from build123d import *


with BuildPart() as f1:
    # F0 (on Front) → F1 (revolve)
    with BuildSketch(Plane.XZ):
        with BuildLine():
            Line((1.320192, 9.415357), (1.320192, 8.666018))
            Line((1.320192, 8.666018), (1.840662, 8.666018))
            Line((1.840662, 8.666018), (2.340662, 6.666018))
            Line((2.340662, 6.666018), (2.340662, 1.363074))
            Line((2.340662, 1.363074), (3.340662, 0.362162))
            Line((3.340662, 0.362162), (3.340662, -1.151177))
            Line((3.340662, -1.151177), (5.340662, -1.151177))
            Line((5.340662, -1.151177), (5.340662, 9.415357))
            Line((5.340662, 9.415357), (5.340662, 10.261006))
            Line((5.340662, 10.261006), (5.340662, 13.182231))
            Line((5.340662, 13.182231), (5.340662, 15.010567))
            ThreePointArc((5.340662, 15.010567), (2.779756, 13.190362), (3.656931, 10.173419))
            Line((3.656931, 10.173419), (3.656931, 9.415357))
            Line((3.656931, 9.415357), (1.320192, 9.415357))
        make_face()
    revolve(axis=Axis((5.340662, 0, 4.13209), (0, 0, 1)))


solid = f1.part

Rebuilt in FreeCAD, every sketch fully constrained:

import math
import FreeCAD as App
import Part
import Sketcher

V = App.Vector

doc = App.newDocument("Part")
params = doc.addObject("Spreadsheet::Sheet", "Params")
for row, (alias, value) in enumerate([
    ("sketch1_width", "2 mm"),
    ("revolution_angle", "360 deg"),
], start=1):
    params.set(f"A{row}", alias)
    params.set(f"B{row}", "=" + value)
    params.setAlias(f"B{row}", alias)

body = doc.addObject("PartDesign::Body", "Body")

sketch1 = body.newObject("Sketcher::SketchObject", "Sketch")
sketch1.AttachmentSupport = (doc.getObject("XZ_Plane"), [""])
sketch1.MapMode = "FlatFace"
sketch1.addGeometry([
    Part.LineSegment(V(1.3, 9.4, 0), V(1.3, 8.7, 0)),
    Part.LineSegment(V(1.3, 8.7, 0), V(1.8, 8.7, 0)),
    Part.LineSegment(V(1.8, 8.7, 0), V(2.3, 6.7, 0)),
    Part.LineSegment(V(2.3, 6.7, 0), V(2.3, 1.4, 0)),
    Part.LineSegment(V(2.3, 1.4, 0), V(3.3, 0.4, 0)),
    Part.LineSegment(V(3.3, 0.4, 0), V(3.3, -1.2, 0)),
    Part.LineSegment(V(3.3, -1.2, 0), V(5.3, -1.2, 0)),
    Part.LineSegment(V(5.3, -1.2, 0), V(5.3, 15, 0)),
    Part.ArcOfCircle(Part.Circle(V(5.3, 12.3, 0), V(0, 0, 1), 2.7), math.radians(90), math.radians(232)),
    Part.LineSegment(V(3.7, 10.2, 0), V(3.7, 9.4, 0)),
    Part.LineSegment(V(3.7, 9.4, 0), V(1.3, 9.4, 0)),
], False)
sketch1.addGeometry(Part.LineSegment(V(5.3, -1.2, 0), V(5.3, 15, 0)), True)
sketch1.addConstraint([
    Sketcher.Constraint("Coincident", 0, 2, 1, 1),
    Sketcher.Constraint("Coincident", 1, 2, 2, 1),
    Sketcher.Constraint("Coincident", 2, 2, 3, 1),
    Sketcher.Constraint("Coincident", 3, 2, 4, 1),
    Sketcher.Constraint("Coincident", 4, 2, 5, 1),
    Sketcher.Constraint("Coincident", 5, 2, 6, 1),
    Sketcher.Constraint("Coincident", 6, 2, 7, 1),
    Sketcher.Constraint("Coincident", 7, 2, 8, 1),
    Sketcher.Constraint("Coincident", 8, 2, 9, 1),
    Sketcher.Constraint("Coincident", 9, 2, 10, 1),
    Sketcher.Constraint("Coincident", 10, 2, 0, 1),
    Sketcher.Constraint("Vertical", 0),
    Sketcher.Constraint("Horizontal", 1),
    Sketcher.Constraint("Vertical", 3),
    Sketcher.Constraint("Vertical", 5),
    Sketcher.Constraint("Horizontal", 6),
    Sketcher.Constraint("Vertical", 7),
    Sketcher.Constraint("Vertical", 9),
    Sketcher.Constraint("Horizontal", 10),
    Sketcher.Constraint("Vertical", 11),
    Sketcher.Constraint("Coincident", 11, 1, 6, 2),
    Sketcher.Constraint("Vertical", 8, 3, 6, 2),
    Sketcher.Constraint("Equal", 7, 11),
    Sketcher.Constraint("DistanceX", 6, 1, 6, 2, 2.0),
    Sketcher.Constraint("DistanceY", 2, 2, 1, 2, 2.0),
    Sketcher.Constraint("DistanceX", 2, 2, 8, 3, 3.0),
    Sketcher.Constraint("DistanceX", 1, 2, 8, 3, 3.5),
    Sketcher.Constraint("Radius", 8, 2.711613),
    Sketcher.Constraint("DistanceX", 1, 1, 1, 2, 0.52047),
    Sketcher.Constraint("DistanceX", 10, 2, 10, 1, 2.336739),
    Sketcher.Constraint("DistanceY", 0, 2, 0, 1, 0.749339),
    Sketcher.Constraint("DistanceY", 5, 2, 5, 1, 1.513339),
    Sketcher.Constraint("DistanceY", 1, 2, 8, 2, 1.507401),
    Sketcher.Constraint("Distance", 4, 1.414859),
    Sketcher.Constraint("DistanceY", 3, 2, 3, 1, 5.302944),
    Sketcher.Constraint("DistanceX", -1, 1, 8, 3, 5.340662),
    Sketcher.Constraint("DistanceY", -1, 1, 2, 2, 6.666018),
])
sketch1.setExpression("Constraints[23]", "Params.sketch1_width")
revolution = body.newObject("PartDesign::Revolution", "Revolution")
revolution.Profile = sketch1
revolution.ReferenceAxis = (sketch1, ["Axis0"])
revolution.setExpression("Angle", "Params.revolution_angle")

doc.recompute()
